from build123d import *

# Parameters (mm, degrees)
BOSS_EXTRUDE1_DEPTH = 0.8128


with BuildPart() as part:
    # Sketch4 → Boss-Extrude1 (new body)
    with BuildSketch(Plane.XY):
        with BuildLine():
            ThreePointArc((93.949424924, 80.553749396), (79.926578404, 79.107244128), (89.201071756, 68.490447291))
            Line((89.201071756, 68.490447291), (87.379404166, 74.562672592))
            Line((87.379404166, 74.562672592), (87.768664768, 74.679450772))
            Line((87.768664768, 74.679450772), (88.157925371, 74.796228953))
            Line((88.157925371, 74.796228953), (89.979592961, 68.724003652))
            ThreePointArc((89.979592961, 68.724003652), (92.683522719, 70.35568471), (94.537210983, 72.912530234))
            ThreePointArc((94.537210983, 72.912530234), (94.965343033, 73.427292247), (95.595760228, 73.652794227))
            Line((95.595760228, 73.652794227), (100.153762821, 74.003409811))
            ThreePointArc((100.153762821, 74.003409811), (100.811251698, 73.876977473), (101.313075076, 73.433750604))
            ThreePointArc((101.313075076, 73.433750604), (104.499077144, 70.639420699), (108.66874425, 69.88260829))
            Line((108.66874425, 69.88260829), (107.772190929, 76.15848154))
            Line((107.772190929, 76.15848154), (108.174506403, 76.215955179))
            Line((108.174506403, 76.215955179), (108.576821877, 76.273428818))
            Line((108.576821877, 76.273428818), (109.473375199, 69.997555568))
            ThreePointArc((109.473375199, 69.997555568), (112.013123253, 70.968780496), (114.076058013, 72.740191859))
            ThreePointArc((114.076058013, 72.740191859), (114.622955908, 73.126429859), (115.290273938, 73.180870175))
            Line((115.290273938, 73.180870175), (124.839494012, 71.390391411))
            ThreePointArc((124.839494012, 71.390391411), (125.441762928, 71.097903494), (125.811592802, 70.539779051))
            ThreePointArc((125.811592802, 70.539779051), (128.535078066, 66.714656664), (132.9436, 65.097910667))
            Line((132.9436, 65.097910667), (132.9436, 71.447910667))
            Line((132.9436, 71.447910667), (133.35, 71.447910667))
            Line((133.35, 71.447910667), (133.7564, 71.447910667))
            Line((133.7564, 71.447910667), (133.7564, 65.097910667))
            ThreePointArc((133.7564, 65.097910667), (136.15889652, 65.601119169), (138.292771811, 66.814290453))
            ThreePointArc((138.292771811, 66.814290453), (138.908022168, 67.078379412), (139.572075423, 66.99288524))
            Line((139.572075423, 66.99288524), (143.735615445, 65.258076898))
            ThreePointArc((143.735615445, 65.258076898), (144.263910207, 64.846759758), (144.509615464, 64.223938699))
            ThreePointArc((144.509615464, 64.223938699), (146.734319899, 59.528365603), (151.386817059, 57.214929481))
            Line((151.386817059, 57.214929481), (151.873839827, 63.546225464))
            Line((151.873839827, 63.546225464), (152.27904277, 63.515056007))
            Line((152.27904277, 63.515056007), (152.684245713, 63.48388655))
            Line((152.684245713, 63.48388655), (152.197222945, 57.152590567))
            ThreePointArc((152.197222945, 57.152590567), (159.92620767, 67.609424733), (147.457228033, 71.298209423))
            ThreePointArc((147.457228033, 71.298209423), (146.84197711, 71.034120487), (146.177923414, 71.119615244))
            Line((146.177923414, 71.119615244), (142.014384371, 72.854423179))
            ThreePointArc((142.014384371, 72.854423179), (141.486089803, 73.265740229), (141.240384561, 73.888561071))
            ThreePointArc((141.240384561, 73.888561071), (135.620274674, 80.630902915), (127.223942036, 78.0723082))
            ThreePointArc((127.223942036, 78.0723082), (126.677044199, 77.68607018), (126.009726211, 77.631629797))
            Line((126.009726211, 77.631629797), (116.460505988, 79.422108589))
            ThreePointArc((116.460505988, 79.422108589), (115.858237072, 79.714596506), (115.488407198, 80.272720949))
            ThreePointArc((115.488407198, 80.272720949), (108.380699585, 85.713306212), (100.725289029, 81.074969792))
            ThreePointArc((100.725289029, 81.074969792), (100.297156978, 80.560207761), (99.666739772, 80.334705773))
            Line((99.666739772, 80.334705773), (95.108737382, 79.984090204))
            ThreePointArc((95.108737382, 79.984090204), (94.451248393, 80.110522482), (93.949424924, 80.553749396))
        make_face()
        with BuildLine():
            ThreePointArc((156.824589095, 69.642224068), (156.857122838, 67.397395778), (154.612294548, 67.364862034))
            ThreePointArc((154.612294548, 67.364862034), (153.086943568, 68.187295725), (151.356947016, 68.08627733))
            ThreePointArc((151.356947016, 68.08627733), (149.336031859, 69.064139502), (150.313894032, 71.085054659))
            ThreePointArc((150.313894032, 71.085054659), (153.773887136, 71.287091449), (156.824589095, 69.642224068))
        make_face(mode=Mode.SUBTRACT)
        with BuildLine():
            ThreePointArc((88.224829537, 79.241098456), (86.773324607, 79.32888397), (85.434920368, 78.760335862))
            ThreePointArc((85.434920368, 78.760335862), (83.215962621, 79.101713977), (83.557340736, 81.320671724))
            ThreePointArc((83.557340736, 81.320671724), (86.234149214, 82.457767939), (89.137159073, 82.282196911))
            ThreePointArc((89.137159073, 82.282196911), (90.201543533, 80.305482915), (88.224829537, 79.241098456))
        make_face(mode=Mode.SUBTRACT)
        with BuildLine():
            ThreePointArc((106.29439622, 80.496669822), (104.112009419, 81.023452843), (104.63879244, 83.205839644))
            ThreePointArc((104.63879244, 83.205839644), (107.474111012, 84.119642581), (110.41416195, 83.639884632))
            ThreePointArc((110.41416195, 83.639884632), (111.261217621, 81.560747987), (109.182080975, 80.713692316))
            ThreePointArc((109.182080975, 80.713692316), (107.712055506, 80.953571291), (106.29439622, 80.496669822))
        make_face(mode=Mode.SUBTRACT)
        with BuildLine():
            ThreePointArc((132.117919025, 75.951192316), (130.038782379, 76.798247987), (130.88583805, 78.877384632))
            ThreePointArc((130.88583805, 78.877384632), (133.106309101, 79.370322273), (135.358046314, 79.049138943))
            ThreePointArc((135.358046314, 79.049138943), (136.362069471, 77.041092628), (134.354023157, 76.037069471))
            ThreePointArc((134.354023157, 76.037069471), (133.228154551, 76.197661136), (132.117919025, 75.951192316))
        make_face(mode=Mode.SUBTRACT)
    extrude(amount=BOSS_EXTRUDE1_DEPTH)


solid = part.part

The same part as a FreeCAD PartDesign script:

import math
import FreeCAD as App
import Part
import Sketcher
Q = App.Units.Quantity

doc = App.newDocument("Part")
body = doc.addObject("PartDesign::Body", "Body")

# Sketch on XY plane
sketch1 = body.newObject("Sketcher::SketchObject", "Sketch")
sketch1.AttachmentSupport = (doc.getObject("XY_Plane"), [""])
sketch1.MapMode = "FlatFace"
sketch1.addGeometry([
    Part.ArcOfCircle(Part.Circle(App.Vector(87.3125, 76.2, 0), App.Vector(0, 0, 1), 7.9375), math.radians(33.264432), math.radians(283.764417)),  # 0
    Part.LineSegment(App.Vector(89.201072, 68.490447, 0), App.Vector(87.379404, 74.562673, 0)),  # 1
    Part.LineSegment(App.Vector(87.379404, 74.562673, 0), App.Vector(87.768665, 74.679451, 0)),  # 2
    Part.LineSegment(App.Vector(87.768665, 74.679451, 0), App.Vector(88.157925, 74.796229, 0)),  # 3
    Part.LineSegment(App.Vector(88.157925, 74.796229, 0), App.Vector(89.979593, 68.724004, 0)),  # 4
    Part.ArcOfCircle(Part.Circle(App.Vector(87.3125, 76.2, 0), App.Vector(0, 0, 1), 7.9375), math.radians(-70.365929), math.radians(-24.467022)),  # 5
    Part.ArcOfCircle(Part.Circle(App.Vector(95.693165, 72.386535, 0), App.Vector(0, 0, 1), 1.27), math.radians(94.398702), math.radians(155.532976)),  # 6
    Part.LineSegment(App.Vector(95.59576, 73.652794, 0), App.Vector(100.153763, 74.00341, 0)),  # 7
    Part.ArcOfCircle(Part.Circle(App.Vector(100.251167, 72.737151, 0), App.Vector(0, 0, 1), 1.27), math.radians(33.264438), math.radians(94.398695)),  # 8
    Part.ArcOfCircle(Part.Circle(App.Vector(107.95, 77.7875, 0), App.Vector(0, 0, 1), 7.9375), math.radians(-146.735568), math.radians(-84.804725)),  # 9
    Part.LineSegment(App.Vector(108.668744, 69.882608, 0), App.Vector(107.772191, 76.158482, 0)),  # 10
    Part.LineSegment(App.Vector(107.772191, 76.158482, 0), App.Vector(108.576822, 76.273429, 0)),  # 11
    Part.LineSegment(App.Vector(108.576822, 76.273429, 0), App.Vector(109.473375, 69.997556, 0)),  # 12
    Part.ArcOfCircle(Part.Circle(App.Vector(107.95, 77.7875, 0), App.Vector(0, 0, 1), 7.9375), math.radians(-78.935071), math.radians(-39.485383)),  # 13
    Part.ArcOfCircle(Part.Circle(App.Vector(115.056227, 71.932623, 0), App.Vector(0, 0, 1), 1.27), math.radians(79.380335), math.radians(140.514616)),  # 14
    Part.LineSegment(App.Vector(115.290274, 73.18087, 0), App.Vector(124.839494, 71.390391, 0)),  # 15
    Part.ArcOfCircle(Part.Circle(App.Vector(124.605448, 70.142144, 0), App.Vector(0, 0, 1), 1.27), math.radians(18.246071), math.radians(79.380348)),  # 16
    Part.ArcOfCircle(Part.Circle(App.Vector(133.35, 73.025, 0), App.Vector(0, 0, 1), 7.9375), math.radians(-161.753928), math.radians(-92.934827)),  # 17
    Part.LineSegment(App.Vector(132.9436, 65.097911, 0), App.Vector(132.9436, 71.447911, 0)),  # 18
    Part.LineSegment(App.Vector(132.9436, 71.447911, 0), App.Vector(133.7564, 71.447911, 0)),  # 19
    Part.LineSegment(App.Vector(133.7564, 71.447911, 0), App.Vector(133.7564, 65.097911, 0)),  # 20
    Part.ArcOfCircle(Part.Circle(App.Vector(133.35, 73.025, 0), App.Vector(0, 0, 1), 7.9375), math.radians(-87.065173), math.radians(-51.485593)),  # 21
    Part.ArcOfCircle(Part.Circle(App.Vector(139.083615, 65.820577, 0), App.Vector(0, 0, 1), 1.27), math.radians(67.380206), math.radians(128.514409)),  # 22
    Part.LineSegment(App.Vector(139.572075, 66.992885, 0), App.Vector(143.735615, 65.258077, 0)),  # 23
    Part.ArcOfCircle(Part.Circle(App.Vector(143.247154, 64.085769, 0), App.Vector(0, 0, 1), 1.27), math.radians(6.24585), math.radians(67.380135)),  # 24
    Part.ArcOfCircle(Part.Circle(App.Vector(152.4, 65.0875, 0), App.Vector(0, 0, 1), 7.9375), math.radians(-173.754136), math.radians(-97.333532)),  # 25
    Part.LineSegment(App.Vector(151.386817, 57.214929, 0), App.Vector(151.87384, 63.546225, 0)),  # 26
    Part.LineSegment(App.Vector(151.87384, 63.546225, 0), App.Vector(152.684246, 63.483887, 0)),  # 27
    Part.LineSegment(App.Vector(152.684246, 63.483887, 0), App.Vector(152.197223, 57.152591, 0)),  # 28
    Part.ArcOfCircle(Part.Circle(App.Vector(152.4, 65.0875, 0), App.Vector(0, 0, 1), 7.9375), math.radians(-91.463878), math.radians(128.514409)),  # 29
    Part.ArcOfCircle(Part.Circle(App.Vector(146.666385, 72.291923, 0), App.Vector(0, 0, 1), 1.27), math.radians(-112.619851), math.radians(-51.4856)),  # 30
    Part.LineSegment(App.Vector(146.177923, 71.119615, 0), App.Vector(142.014384, 72.854423, 0)),  # 31
    Part.ArcOfCircle(Part.Circle(App.Vector(142.502846, 74.026731, 0), App.Vector(0, 0, 1), 1.27), math.radians(-173.754139), math.radians(-112.619874)),  # 32
    Part.ArcOfCircle(Part.Circle(App.Vector(133.35, 73.025, 0), App.Vector(0, 0, 1), 7.9375), math.radians(6.245863), math.radians(140.514617)),  # 33
    Part.ArcOfCircle(Part.Circle(App.Vector(126.243773, 78.879877, 0), App.Vector(0, 0, 1), 1.27), math.radians(-100.619658), math.radians(-39.48538)),  # 34
    Part.LineSegment(App.Vector(126.009726, 77.63163, 0), App.Vector(116.460506, 79.422109, 0)),  # 35
    Part.ArcOfCircle(Part.Circle(App.Vector(116.694552, 80.670356, 0), App.Vector(0, 0, 1), 1.27), math.radians(-161.753929), math.radians(-100.619652)),  # 36
    Part.ArcOfCircle(Part.Circle(App.Vector(107.95, 77.7875, 0), App.Vector(0, 0, 1), 7.9375), math.radians(18.246072), math.radians(155.532978)),  # 37
    Part.ArcOfCircle(Part.Circle(App.Vector(99.569335, 81.600965, 0), App.Vector(0, 0, 1), 1.27), math.radians(-85.601297), math.radians(-24.467023)),  # 38
    Part.LineSegment(App.Vector(99.66674, 80.334706, 0), App.Vector(95.108737, 79.98409, 0)),  # 39
    Part.ArcOfCircle(Part.Circle(App.Vector(95.011333, 81.250349, 0), App.Vector(0, 0, 1), 1.27), math.radians(-146.735562), math.radians(-85.601295)),  # 40
    Part.ArcOfCircle(Part.Circle(App.Vector(152.4, 65.0875, 0), App.Vector(0, 0, 1), 6.35), math.radians(45.830315), math.radians(109.179008)),  # 41
    Part.ArcOfCircle(Part.Circle(App.Vector(155.718442, 68.503543, 0), App.Vector(0, 0, 1), 1.5875), math.radians(-134.169684), math.radians(45.830315)),  # 42
    Part.ArcOfCircle(Part.Circle(App.Vector(152.4, 65.0875, 0), App.Vector(0, 0, 1), 3.175), math.radians(45.830315), math.radians(109.179008)),  # 43
    Part.ArcOfCircle(Part.Circle(App.Vector(150.835421, 69.585666, 0), App.Vector(0, 0, 1), 1.5875), math.radians(109.179008), math.radians(289.179008)),  # 44
    Part.ArcOfCircle(Part.Circle(App.Vector(88.680994, 80.761648, 0), App.Vector(0, 0, 1), 1.5875), math.radians(-106.699244), math.radians(73.300756)),  # 45
    Part.ArcOfCircle(Part.Circle(App.Vector(87.3125, 76.2, 0), App.Vector(0, 0, 1), 3.175), math.radians(73.300756), math.radians(126.253838)),  # 46
    Part.ArcOfCircle(Part.Circle(App.Vector(84.496131, 80.040504, 0), App.Vector(0, 0, 1), 1.5875), math.radians(126.253838), math.radians(306.253838)),  # 47
    Part.ArcOfCircle(Part.Circle(App.Vector(87.3125, 76.2, 0), App.Vector(0, 0, 1), 6.35), math.radians(73.300756), math.radians(126.253838)),  # 48
    Part.ArcOfCircle(Part.Circle(App.Vector(107.95, 77.7875, 0), App.Vector(0, 0, 1), 3.175), math.radians(67.166346), math.radians(121.429566)),  # 49
    Part.ArcOfCircle(Part.Circle(App.Vector(105.466594, 81.851255, 0), App.Vector(0, 0, 1), 1.5875), math.radians(121.429566), math.radians(301.429566)),  # 50
    Part.ArcOfCircle(Part.Circle(App.Vector(107.95, 77.7875, 0), App.Vector(0, 0, 1), 6.35), math.radians(67.166346), math.radians(121.429566)),  # 51
    Part.ArcOfCircle(Part.Circle(App.Vector(109.798121, 82.176788, 0), App.Vector(0, 0, 1), 1.5875), math.radians(-112.833654), math.radians(67.166346)),  # 52
    Part.ArcOfCircle(Part.Circle(App.Vector(133.35, 73.025, 0), App.Vector(0, 0, 1), 3.175), math.radians(71.565051), math.radians(112.833654)),  # 53
    Part.ArcOfCircle(Part.Circle(App.Vector(131.501879, 77.414288, 0), App.Vector(0, 0, 1), 1.5875), math.radians(112.833654), math.radians(292.833654)),  # 54
    Part.ArcOfCircle(Part.Circle(App.Vector(133.35, 73.025, 0), App.Vector(0, 0, 1), 6.35), math.radians(71.565051), math.radians(112.833654)),  # 55
    Part.ArcOfCircle(Part.Circle(App.Vector(134.856035, 77.543104, 0), App.Vector(0, 0, 1), 1.5875), math.radians(-108.434949), math.radians(71.565051)),  # 56
], False)
sketch1.addConstraint([
    Sketcher.Constraint("Coincident", 0, 2, 1, 1),
    Sketcher.Constraint("Coincident", 1, 2, 2, 1),
    Sketcher.Constraint("Coincident", 2, 2, 3, 1),
    Sketcher.Constraint("Coincident", 3, 2, 4, 1),
    Sketcher.Constraint("Coincident", 4, 2, 5, 1),
    Sketcher.Constraint("Tangent", 5, 2, 6, 2),
    Sketcher.Constraint("Tangent", 6, 1, 7, 1),
    Sketcher.Constraint("Tangent", 7, 2, 8, 2),
    Sketcher.Constraint("Tangent", 8, 1, 9, 1),
    Sketcher.Constraint("Coincident", 9, 2, 10, 1),
    Sketcher.Constraint("Coincident", 10, 2, 11, 1),
    Sketcher.Constraint("Coincident", 11, 2, 12, 1),
    Sketcher.Constraint("Coincident", 12, 2, 13, 1),
    Sketcher.Constraint("Tangent", 13, 2, 14, 2),
    Sketcher.Constraint("Tangent", 14, 1, 15, 1),
    Sketcher.Constraint("Tangent", 15, 2, 16, 2),
    Sketcher.Constraint("Tangent", 16, 1, 17, 1),
    Sketcher.Constraint("Coincident", 17, 2, 18, 1),
    Sketcher.Constraint("Coincident", 18, 2, 19, 1),
    Sketcher.Constraint("Coincident", 19, 2, 20, 1),
    Sketcher.Constraint("Coincident", 20, 2, 21, 1),
    Sketcher.Constraint("Tangent", 21, 2, 22, 2),
    Sketcher.Constraint("Tangent", 22, 1, 23, 1),
    Sketcher.Constraint("Tangent", 23, 2, 24, 2),
    Sketcher.Constraint("Tangent", 24, 1, 25, 1),
    Sketcher.Constraint("Coincident", 25, 2, 26, 1),
    Sketcher.Constraint("Coincident", 26, 2, 27, 1),
    Sketcher.Constraint("Coincident", 27, 2, 28, 1),
    Sketcher.Constraint("Coincident", 28, 2, 29, 1),
    Sketcher.Constraint("Tangent", 29, 2, 30, 2),
    Sketcher.Constraint("Tangent", 30, 1, 31, 1),
    Sketcher.Constraint("Tangent", 31, 2, 32, 2),
    Sketcher.Constraint("Tangent", 32, 1, 33, 1),
    Sketcher.Constraint("Tangent", 33, 2, 34, 2),
    Sketcher.Constraint("Tangent", 34, 1, 35, 1),
    Sketcher.Constraint("Tangent", 35, 2, 36, 2),
    Sketcher.Constraint("Tangent", 36, 1, 37, 1),
    Sketcher.Constraint("Tangent", 37, 2, 38, 2),
    Sketcher.Constraint("Tangent", 38, 1, 39, 1),
    Sketcher.Constraint("Tangent", 39, 2, 40, 2),
    Sketcher.Constraint("Tangent", 40, 1, 0, 1),
    Sketcher.Constraint("Tangent", 41, 1, 42, 2),
    Sketcher.Constraint("Tangent", 42, 1, 43, 1),
    Sketcher.Constraint("Tangent", 43, 2, 44, 2),
    Sketcher.Constraint("Tangent", 44, 1, 41, 2),
    Sketcher.Constraint("Tangent", 45, 1, 46, 1),
    Sketcher.Constraint("Tangent", 46, 2, 47, 2),
    Sketcher.Constraint("Tangent", 47, 1, 48, 2),
    Sketcher.Constraint("Tangent", 48, 1, 45, 2),
    Sketcher.Constraint("Tangent", 49, 2, 50, 2),
    Sketcher.Constraint("Tangent", 50, 1, 51, 2),
    Sketcher.Constraint("Tangent", 51, 1, 52, 2),
    Sketcher.Constraint("Tangent", 52, 1, 49, 1),
    Sketcher.Constraint("Tangent", 53, 2, 54, 2),
    Sketcher.Constraint("Tangent", 54, 1, 55, 2),
    Sketcher.Constraint("Tangent", 55, 1, 56, 2),
    Sketcher.Constraint("Tangent", 56, 1, 53, 1),
    Sketcher.Constraint("Vertical", 18),
    Sketcher.Constraint("Horizontal", 19),
    Sketcher.Constraint("Vertical", 20),
    Sketcher.Constraint("Coincident", 5, 3, 0, 3),
    Sketcher.Constraint("Coincident", 13, 3, 9, 3),
    Sketcher.Constraint("Coincident", 21, 3, 17, 3),
    Sketcher.Constraint("Coincident", 29, 3, 25, 3),
    Sketcher.Constraint("Coincident", 33, 3, 17, 3),
    Sketcher.Constraint("Coincident", 37, 3, 9, 3),
    Sketcher.Constraint("Coincident", 41, 3, 25, 3),
    Sketcher.Constraint("Coincident", 43, 3, 25, 3),
    Sketcher.Constraint("Coincident", 46, 3, 0, 3),
    Sketcher.Constraint("Coincident", 48, 3, 0, 3),
    Sketcher.Constraint("Coincident", 49, 3, 9, 3),
    Sketcher.Constraint("Coincident", 51, 3, 9, 3),
    Sketcher.Constraint("Coincident", 53, 3, 17, 3),
    Sketcher.Constraint("Coincident", 55, 3, 17, 3),
    Sketcher.Constraint("Equal", 0, 5),
    Sketcher.Constraint("Equal", 6, 8),
    Sketcher.Constraint("Equal", 5, 9),
    Sketcher.Constraint("Equal", 9, 13),
    Sketcher.Constraint("Equal", 8, 14),
    Sketcher.Constraint("Equal", 14, 16),
    Sketcher.Constraint("Equal", 13, 17),
    Sketcher.Constraint("Equal", 17, 21),
    Sketcher.Constraint("Equal", 16, 22),
    Sketcher.Constraint("Equal", 22, 24),
    Sketcher.Constraint("Equal", 21, 25),
    Sketcher.Constraint("Equal", 25, 29),
    Sketcher.Constraint("Equal", 24, 30),
    Sketcher.Constraint("Equal", 30, 32),
    Sketcher.Constraint("Equal", 29, 33),
    Sketcher.Constraint("Equal", 32, 34),
    Sketcher.Constraint("Equal", 34, 36),
    Sketcher.Constraint("Equal", 33, 37),
    Sketcher.Constraint("Equal", 36, 38),
    Sketcher.Constraint("Equal", 38, 40),
    Sketcher.Constraint("Equal", 44, 45),
    Sketcher.Constraint("Equal", 43, 46),
    Sketcher.Constraint("Equal", 46, 49),
    Sketcher.Constraint("Equal", 47, 50),
    Sketcher.Constraint("Equal", 49, 53),
    Sketcher.Constraint("Equal", 52, 54),
    Sketcher.Constraint("Perpendicular", 1, 2),
    Sketcher.Constraint("Parallel", 2, 3),
    Sketcher.Constraint("Perpendicular", 3, 4),
    Sketcher.Constraint("Perpendicular", 10, 11),
    Sketcher.Constraint("Perpendicular", 11, 12),
    Sketcher.Constraint("Perpendicular", 26, 27),
    Sketcher.Constraint("Perpendicular", 27, 28),
    Sketcher.Constraint("Parallel", 23, 31),
    Sketcher.Constraint("Parallel", 15, 35),
    Sketcher.Constraint("Parallel", 7, 39),
    Sketcher.Constraint("Horizontal", 17, 2, 20, 2),
    Sketcher.Constraint("Equal", 2, 3),
    Sketcher.Constraint("Equal", 1, 4),
    Sketcher.Constraint("Equal", 4, 10),
    Sketcher.Constraint("Equal", 10, 12),
    Sketcher.Constraint("Equal", 11, 27),
    Sketcher.Constraint("Equal", 26, 28),
    Sketcher.Constraint("Equal", 23, 31),
    Sketcher.Constraint("Equal", 15, 35),
    Sketcher.Constraint("Equal", 7, 39),
    Sketcher.Constraint("Radius", 6, Q("0.05 in")),
    Sketcher.Constraint("Radius", 41, Q("0.25 in")),
    Sketcher.Constraint("DistanceY", -1, 1, 0, 3, Q("3 in")),
    Sketcher.Constraint("DistanceX", -1, 1, 25, 3, Q("6 in")),
    Sketcher.Constraint("Radius", 0, Q("0.3125 in")),
    Sketcher.Constraint("Radius", 42, Q("0.0625 in")),
    Sketcher.Constraint("DistanceY", 18, 1, 18, 2, Q("0.25 in")),
    Sketcher.Constraint("Distance", 26, Q("0.25 in")),
    Sketcher.Constraint("DistanceX", 19, 1, 19, 2, Q("0.032 in")),
    Sketcher.Constraint("DistanceX", -1, 1, 9, 3, Q("4.25 in")),
    Sketcher.Constraint("DistanceX", -1, 1, 17, 3, Q("5.25 in")),
    Sketcher.Constraint("Distance", 2, Q("0.016 in")),
    Sketcher.Constraint("Distance", 11, Q("0.032 in")),
    Sketcher.Constraint("DistanceX", -1, 1, 0, 3, Q("3.4375 in")),
    Sketcher.Constraint("DistanceY", -1, 1, 9, 3, Q("3.0625 in")),
    Sketcher.Constraint("DistanceY", -1, 1, 17, 3, Q("2.875 in")),
    Sketcher.Constraint("DistanceY", -1, 1, 25, 3, Q("2.5625 in")),
    Sketcher.Constraint("Distance", 23, 4.510502),
    Sketcher.Constraint("DistanceY", -1, 1, 45, 1, 79.241098),
    Sketcher.Constraint("Distance", 1, 6.339589),
    Sketcher.Constraint("DistanceY", -1, 1, 8, 3, 72.737151),
    Sketcher.Constraint("DistanceY", -1, 1, 24, 3, 64.085769),
    Sketcher.Constraint("DistanceX", -1, 1, 42, 3, 155.718442),
    Sketcher.Constraint("DistanceX", -1, 1, 44, 3, 150.835421),
    Sketcher.Constraint("DistanceX", -1, 1, 47, 3, 84.496131),
    Sketcher.Constraint("DistanceX", -1, 1, 52, 3, 109.798121),
    Sketcher.Constraint("DistanceX", -1, 1, 54, 3, 131.501879),
    Sketcher.Constraint("DistanceX", -1, 1, 0, 2, 89.201072),
    Sketcher.Constraint("DistanceX", -1, 1, 5, 2, 94.537211),
    Sketcher.Constraint("DistanceY", -1, 1, 9, 2, 69.882608),
    Sketcher.Constraint("DistanceX", -1, 1, 13, 2, 114.076058),
    Sketcher.Constraint("DistanceY", -1, 1, 14, 1, 73.18087),
    Sketcher.Constraint("DistanceY", -1, 1, 25, 2, 57.214929),
    Sketcher.Constraint("DistanceY", -1, 1, 49, 2, 80.49667),
    Sketcher.Constraint("DistanceY", -1, 1, 55, 1, 79.049139),
])
pad1 = body.newObject("PartDesign::Pad", "Pad")
pad1.Profile = sketch1
pad1.Length = Q("0.032 in")

doc.recompute()
